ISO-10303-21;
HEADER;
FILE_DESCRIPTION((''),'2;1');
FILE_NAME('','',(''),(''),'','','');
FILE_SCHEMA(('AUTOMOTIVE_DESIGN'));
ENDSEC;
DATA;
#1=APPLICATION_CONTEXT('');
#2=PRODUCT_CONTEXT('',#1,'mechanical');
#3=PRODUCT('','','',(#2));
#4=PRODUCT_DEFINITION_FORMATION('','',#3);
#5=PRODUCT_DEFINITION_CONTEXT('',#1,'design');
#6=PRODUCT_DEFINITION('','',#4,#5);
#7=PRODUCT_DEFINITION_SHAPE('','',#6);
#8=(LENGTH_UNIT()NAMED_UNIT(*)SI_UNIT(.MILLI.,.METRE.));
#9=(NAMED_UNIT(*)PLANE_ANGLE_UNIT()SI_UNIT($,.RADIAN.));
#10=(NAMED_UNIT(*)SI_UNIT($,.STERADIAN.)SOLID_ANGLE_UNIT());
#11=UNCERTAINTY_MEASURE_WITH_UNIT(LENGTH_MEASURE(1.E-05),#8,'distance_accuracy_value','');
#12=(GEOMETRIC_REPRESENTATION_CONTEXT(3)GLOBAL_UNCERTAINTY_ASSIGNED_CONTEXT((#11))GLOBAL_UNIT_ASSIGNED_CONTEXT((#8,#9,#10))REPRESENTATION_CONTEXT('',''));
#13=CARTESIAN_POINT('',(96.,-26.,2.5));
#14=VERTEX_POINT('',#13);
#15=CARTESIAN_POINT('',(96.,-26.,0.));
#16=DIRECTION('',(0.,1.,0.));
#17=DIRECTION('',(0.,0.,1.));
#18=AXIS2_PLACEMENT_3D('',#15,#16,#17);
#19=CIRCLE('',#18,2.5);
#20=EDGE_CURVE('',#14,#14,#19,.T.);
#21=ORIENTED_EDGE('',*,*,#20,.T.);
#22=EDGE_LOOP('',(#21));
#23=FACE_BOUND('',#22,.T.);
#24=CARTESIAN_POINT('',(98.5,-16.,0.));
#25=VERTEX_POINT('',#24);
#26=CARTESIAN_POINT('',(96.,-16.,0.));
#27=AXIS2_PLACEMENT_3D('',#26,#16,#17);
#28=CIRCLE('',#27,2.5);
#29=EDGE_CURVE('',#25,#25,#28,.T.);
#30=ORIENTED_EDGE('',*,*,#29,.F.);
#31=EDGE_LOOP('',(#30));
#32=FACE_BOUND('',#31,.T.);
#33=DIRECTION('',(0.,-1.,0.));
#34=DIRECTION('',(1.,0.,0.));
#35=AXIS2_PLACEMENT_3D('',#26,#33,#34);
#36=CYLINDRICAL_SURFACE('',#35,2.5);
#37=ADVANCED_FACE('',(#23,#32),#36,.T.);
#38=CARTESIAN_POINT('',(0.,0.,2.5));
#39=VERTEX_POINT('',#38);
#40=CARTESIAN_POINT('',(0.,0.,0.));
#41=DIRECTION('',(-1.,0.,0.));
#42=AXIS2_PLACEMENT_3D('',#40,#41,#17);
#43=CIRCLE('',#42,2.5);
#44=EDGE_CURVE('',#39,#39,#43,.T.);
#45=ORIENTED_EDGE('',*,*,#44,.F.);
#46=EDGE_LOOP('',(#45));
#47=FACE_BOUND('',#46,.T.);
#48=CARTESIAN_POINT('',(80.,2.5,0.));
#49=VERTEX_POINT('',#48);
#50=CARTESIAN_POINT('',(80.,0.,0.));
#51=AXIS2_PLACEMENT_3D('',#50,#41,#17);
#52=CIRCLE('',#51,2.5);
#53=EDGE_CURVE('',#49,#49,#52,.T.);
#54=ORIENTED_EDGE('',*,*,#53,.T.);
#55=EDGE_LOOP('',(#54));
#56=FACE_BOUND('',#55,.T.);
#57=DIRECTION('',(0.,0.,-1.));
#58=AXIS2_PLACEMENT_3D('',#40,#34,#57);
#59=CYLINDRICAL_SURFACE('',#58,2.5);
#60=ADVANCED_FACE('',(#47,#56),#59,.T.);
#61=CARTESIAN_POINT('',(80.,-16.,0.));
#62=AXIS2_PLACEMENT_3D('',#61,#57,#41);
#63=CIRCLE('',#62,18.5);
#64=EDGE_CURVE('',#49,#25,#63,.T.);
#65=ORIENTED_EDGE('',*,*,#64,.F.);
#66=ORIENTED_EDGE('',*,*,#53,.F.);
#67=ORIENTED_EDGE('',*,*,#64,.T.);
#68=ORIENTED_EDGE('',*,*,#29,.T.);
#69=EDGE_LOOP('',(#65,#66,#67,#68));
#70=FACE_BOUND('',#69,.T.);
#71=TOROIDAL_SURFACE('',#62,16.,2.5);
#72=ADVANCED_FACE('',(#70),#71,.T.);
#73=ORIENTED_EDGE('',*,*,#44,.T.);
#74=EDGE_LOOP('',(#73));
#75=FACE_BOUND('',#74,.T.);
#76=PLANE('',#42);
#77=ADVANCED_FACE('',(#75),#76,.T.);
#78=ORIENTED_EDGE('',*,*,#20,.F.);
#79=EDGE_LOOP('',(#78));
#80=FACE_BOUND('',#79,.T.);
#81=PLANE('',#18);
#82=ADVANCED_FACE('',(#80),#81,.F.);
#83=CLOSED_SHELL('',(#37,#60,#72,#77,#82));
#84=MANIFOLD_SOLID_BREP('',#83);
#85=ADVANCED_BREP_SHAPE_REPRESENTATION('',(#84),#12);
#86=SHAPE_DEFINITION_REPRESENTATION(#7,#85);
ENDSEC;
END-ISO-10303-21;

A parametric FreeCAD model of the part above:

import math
import FreeCAD as App
import Part
import Sketcher
from FreeCAD import Vector
Q = App.Units.Quantity

doc = App.newDocument("Part")
body = doc.addObject("PartDesign::Body", "Body")

# Sketch on YZ plane
sketch1 = body.newObject("Sketcher::SketchObject", "Sketch")
sketch1.AttachmentSupport = (doc.getObject("YZ_Plane"), [""])
sketch1.MapMode = "FlatFace"
sketch1.addGeometry(Part.Circle(Vector(0, 0, 0), Vector(0, 0, 1), 2.5), False)
sketch1.addConstraint([
    Sketcher.Constraint("Coincident", 0, 3, -1, 1),
    Sketcher.Constraint("Diameter", 0, Q("5 mm")),
])

# Sketch on XY plane
sketch2 = body.newObject("Sketcher::SketchObject", "Sketch001")
sketch2.AttachmentSupport = (doc.getObject("XY_Plane"), [""])
sketch2.MapMode = "FlatFace"
sketch2.addGeometry([
    Part.LineSegment(Vector(0, 0, 0), Vector(80, 0, 0)),
    Part.ArcOfCircle(Part.Circle(Vector(80, -16, 0), Vector(0, 0, 1), 16), math.radians(0), math.radians(90)),
    Part.LineSegment(Vector(96, -16, 0), Vector(96, -26, 0)),
], False)
sketch2.addConstraint([
    Sketcher.Constraint("Tangent", 0, 2, 1, 2),
    Sketcher.Constraint("Tangent", 1, 1, 2, 1),
    Sketcher.Constraint("Horizontal", 0),
    Sketcher.Constraint("Vertical", 2),
    Sketcher.Constraint("Coincident", 0, 1, -1, 1),
    Sketcher.Constraint("Radius", 1, Q("16 mm")),
    Sketcher.Constraint("DistanceX", 0, 1, 0, 2, Q("80 mm")),
    Sketcher.Constraint("DistanceY", 2, 2, 2, 1, Q("10 mm")),
])
doc.recompute()

additivepipe = body.newObject("PartDesign::AdditivePipe", "AdditivePipe")
additivepipe.Profile = sketch1
additivepipe.Spine = (sketch2, ["Edge1", "Edge2", "Edge3"])

doc.recompute()
